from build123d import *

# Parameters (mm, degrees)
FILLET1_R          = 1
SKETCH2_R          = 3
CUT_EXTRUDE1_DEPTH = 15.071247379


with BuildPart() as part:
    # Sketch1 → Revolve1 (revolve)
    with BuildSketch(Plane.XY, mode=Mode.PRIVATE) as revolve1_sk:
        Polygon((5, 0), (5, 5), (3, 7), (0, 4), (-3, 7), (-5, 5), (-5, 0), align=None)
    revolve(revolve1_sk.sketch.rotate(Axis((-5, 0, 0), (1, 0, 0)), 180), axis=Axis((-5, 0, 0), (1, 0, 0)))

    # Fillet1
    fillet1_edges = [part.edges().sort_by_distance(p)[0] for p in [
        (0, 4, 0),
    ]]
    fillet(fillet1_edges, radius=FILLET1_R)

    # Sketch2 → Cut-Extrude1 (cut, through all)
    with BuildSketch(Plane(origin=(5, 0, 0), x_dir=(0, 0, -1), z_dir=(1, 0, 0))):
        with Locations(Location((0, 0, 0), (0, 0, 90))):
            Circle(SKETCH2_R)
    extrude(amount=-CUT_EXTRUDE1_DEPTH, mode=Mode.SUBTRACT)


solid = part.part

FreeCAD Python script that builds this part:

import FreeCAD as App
import Part
import Sketcher

V = App.Vector
Q = App.Units.Quantity


def edges_at(feature, points):
    """Names of the edges that pass closest to the given points."""
    edges = feature.Shape.Edges
    near = lambda p: min(range(len(edges)), key=lambda i: edges[i].distToShape(Part.Vertex(*p))[0])
    return sorted({f"Edge{near(p) + 1}" for p in points})

doc = App.newDocument("Part")
body = doc.addObject("PartDesign::Body", "Body")

sketch1 = body.newObject("Sketcher::SketchObject", "Sketch")
sketch1.AttachmentSupport = (doc.getObject("XY_Plane"), [""])
sketch1.MapMode = "FlatFace"
sketch1.addGeometry([
    Part.LineSegment(V(5, 0, 0), V(5, 5, 0)),
    Part.LineSegment(V(5, 5, 0), V(3, 7, 0)),
    Part.LineSegment(V(3, 7, 0), V(0, 4, 0)),
    Part.LineSegment(V(0, 4, 0), V(-3, 7, 0)),
    Part.LineSegment(V(-3, 7, 0), V(-5, 5, 0)),
    Part.LineSegment(V(-5, 5, 0), V(-5, 0, 0)),
    Part.LineSegment(V(-5, 0, 0), V(5, 0, 0)),
], False)
sketch1.addConstraint([
    Sketcher.Constraint("Coincident", 0, 2, 1, 1),
    Sketcher.Constraint("Coincident", 1, 2, 2, 1),
    Sketcher.Constraint("Coincident", 2, 2, 3, 1),
    Sketcher.Constraint("Coincident", 3, 2, 4, 1),
    Sketcher.Constraint("Coincident", 4, 2, 5, 1),
    Sketcher.Constraint("Coincident", 5, 2, 6, 1),
    Sketcher.Constraint("Coincident", 6, 2, 0, 1),
    Sketcher.Constraint("Vertical", 0),
    Sketcher.Constraint("Vertical", 5),
    Sketcher.Constraint("Horizontal", 6),
    Sketcher.Constraint("Symmetric", 5, 2, 6, 2, -1, 1),
    Sketcher.Constraint("Symmetric", 1, 2, 3, 2, -2),
    Sketcher.Constraint("PointOnObject", 2, 2, -2),
    Sketcher.Constraint("Perpendicular", 1, 2),
    Sketcher.Constraint("Perpendicular", 2, 3),
    Sketcher.Constraint("Perpendicular", 3, 4),
    Sketcher.Constraint("DistanceX", 6, 1, 6, 2, Q("10 mm")),
    Sketcher.Constraint("DistanceY", 0, 1, 0, 2, Q("5 mm")),
    Sketcher.Constraint("DistanceX", -1, 1, 1, 2, Q("3 mm")),
])
revolution = body.newObject("PartDesign::Revolution", "Revolution")
revolution.Profile = sketch1
revolution.ReferenceAxis = (sketch1, ["H_Axis"])
revolution.Angle = 360
doc.recompute()

fillet = body.newObject("PartDesign::Fillet", "Fillet")
fillet.Base = (revolution, edges_at(revolution, [(0, 4, 0)]))
fillet.Radius = 1

sketch2 = body.newObject("Sketcher::SketchObject", "Sketch001")
sketch2.AttachmentSupport = (doc.getObject("YZ_Plane"), [""])
sketch2.MapMode = "FlatFace"
sketch2.AttachmentOffset = App.Placement(V(0, 0, 5), App.Rotation())
sketch2.addGeometry(Part.Circle(V(0, 0, 0), V(0, 0, 1), 3), False)
sketch2.addConstraint([
    Sketcher.Constraint("Coincident", 0, 3, -1, 1),
    Sketcher.Constraint("Diameter", 0, Q("6 mm")),
])
pocket1 = body.newObject("PartDesign::Pocket", "Pocket")
pocket1.Profile = sketch2
pocket1.Type = "ThroughAll"

doc.recompute()
